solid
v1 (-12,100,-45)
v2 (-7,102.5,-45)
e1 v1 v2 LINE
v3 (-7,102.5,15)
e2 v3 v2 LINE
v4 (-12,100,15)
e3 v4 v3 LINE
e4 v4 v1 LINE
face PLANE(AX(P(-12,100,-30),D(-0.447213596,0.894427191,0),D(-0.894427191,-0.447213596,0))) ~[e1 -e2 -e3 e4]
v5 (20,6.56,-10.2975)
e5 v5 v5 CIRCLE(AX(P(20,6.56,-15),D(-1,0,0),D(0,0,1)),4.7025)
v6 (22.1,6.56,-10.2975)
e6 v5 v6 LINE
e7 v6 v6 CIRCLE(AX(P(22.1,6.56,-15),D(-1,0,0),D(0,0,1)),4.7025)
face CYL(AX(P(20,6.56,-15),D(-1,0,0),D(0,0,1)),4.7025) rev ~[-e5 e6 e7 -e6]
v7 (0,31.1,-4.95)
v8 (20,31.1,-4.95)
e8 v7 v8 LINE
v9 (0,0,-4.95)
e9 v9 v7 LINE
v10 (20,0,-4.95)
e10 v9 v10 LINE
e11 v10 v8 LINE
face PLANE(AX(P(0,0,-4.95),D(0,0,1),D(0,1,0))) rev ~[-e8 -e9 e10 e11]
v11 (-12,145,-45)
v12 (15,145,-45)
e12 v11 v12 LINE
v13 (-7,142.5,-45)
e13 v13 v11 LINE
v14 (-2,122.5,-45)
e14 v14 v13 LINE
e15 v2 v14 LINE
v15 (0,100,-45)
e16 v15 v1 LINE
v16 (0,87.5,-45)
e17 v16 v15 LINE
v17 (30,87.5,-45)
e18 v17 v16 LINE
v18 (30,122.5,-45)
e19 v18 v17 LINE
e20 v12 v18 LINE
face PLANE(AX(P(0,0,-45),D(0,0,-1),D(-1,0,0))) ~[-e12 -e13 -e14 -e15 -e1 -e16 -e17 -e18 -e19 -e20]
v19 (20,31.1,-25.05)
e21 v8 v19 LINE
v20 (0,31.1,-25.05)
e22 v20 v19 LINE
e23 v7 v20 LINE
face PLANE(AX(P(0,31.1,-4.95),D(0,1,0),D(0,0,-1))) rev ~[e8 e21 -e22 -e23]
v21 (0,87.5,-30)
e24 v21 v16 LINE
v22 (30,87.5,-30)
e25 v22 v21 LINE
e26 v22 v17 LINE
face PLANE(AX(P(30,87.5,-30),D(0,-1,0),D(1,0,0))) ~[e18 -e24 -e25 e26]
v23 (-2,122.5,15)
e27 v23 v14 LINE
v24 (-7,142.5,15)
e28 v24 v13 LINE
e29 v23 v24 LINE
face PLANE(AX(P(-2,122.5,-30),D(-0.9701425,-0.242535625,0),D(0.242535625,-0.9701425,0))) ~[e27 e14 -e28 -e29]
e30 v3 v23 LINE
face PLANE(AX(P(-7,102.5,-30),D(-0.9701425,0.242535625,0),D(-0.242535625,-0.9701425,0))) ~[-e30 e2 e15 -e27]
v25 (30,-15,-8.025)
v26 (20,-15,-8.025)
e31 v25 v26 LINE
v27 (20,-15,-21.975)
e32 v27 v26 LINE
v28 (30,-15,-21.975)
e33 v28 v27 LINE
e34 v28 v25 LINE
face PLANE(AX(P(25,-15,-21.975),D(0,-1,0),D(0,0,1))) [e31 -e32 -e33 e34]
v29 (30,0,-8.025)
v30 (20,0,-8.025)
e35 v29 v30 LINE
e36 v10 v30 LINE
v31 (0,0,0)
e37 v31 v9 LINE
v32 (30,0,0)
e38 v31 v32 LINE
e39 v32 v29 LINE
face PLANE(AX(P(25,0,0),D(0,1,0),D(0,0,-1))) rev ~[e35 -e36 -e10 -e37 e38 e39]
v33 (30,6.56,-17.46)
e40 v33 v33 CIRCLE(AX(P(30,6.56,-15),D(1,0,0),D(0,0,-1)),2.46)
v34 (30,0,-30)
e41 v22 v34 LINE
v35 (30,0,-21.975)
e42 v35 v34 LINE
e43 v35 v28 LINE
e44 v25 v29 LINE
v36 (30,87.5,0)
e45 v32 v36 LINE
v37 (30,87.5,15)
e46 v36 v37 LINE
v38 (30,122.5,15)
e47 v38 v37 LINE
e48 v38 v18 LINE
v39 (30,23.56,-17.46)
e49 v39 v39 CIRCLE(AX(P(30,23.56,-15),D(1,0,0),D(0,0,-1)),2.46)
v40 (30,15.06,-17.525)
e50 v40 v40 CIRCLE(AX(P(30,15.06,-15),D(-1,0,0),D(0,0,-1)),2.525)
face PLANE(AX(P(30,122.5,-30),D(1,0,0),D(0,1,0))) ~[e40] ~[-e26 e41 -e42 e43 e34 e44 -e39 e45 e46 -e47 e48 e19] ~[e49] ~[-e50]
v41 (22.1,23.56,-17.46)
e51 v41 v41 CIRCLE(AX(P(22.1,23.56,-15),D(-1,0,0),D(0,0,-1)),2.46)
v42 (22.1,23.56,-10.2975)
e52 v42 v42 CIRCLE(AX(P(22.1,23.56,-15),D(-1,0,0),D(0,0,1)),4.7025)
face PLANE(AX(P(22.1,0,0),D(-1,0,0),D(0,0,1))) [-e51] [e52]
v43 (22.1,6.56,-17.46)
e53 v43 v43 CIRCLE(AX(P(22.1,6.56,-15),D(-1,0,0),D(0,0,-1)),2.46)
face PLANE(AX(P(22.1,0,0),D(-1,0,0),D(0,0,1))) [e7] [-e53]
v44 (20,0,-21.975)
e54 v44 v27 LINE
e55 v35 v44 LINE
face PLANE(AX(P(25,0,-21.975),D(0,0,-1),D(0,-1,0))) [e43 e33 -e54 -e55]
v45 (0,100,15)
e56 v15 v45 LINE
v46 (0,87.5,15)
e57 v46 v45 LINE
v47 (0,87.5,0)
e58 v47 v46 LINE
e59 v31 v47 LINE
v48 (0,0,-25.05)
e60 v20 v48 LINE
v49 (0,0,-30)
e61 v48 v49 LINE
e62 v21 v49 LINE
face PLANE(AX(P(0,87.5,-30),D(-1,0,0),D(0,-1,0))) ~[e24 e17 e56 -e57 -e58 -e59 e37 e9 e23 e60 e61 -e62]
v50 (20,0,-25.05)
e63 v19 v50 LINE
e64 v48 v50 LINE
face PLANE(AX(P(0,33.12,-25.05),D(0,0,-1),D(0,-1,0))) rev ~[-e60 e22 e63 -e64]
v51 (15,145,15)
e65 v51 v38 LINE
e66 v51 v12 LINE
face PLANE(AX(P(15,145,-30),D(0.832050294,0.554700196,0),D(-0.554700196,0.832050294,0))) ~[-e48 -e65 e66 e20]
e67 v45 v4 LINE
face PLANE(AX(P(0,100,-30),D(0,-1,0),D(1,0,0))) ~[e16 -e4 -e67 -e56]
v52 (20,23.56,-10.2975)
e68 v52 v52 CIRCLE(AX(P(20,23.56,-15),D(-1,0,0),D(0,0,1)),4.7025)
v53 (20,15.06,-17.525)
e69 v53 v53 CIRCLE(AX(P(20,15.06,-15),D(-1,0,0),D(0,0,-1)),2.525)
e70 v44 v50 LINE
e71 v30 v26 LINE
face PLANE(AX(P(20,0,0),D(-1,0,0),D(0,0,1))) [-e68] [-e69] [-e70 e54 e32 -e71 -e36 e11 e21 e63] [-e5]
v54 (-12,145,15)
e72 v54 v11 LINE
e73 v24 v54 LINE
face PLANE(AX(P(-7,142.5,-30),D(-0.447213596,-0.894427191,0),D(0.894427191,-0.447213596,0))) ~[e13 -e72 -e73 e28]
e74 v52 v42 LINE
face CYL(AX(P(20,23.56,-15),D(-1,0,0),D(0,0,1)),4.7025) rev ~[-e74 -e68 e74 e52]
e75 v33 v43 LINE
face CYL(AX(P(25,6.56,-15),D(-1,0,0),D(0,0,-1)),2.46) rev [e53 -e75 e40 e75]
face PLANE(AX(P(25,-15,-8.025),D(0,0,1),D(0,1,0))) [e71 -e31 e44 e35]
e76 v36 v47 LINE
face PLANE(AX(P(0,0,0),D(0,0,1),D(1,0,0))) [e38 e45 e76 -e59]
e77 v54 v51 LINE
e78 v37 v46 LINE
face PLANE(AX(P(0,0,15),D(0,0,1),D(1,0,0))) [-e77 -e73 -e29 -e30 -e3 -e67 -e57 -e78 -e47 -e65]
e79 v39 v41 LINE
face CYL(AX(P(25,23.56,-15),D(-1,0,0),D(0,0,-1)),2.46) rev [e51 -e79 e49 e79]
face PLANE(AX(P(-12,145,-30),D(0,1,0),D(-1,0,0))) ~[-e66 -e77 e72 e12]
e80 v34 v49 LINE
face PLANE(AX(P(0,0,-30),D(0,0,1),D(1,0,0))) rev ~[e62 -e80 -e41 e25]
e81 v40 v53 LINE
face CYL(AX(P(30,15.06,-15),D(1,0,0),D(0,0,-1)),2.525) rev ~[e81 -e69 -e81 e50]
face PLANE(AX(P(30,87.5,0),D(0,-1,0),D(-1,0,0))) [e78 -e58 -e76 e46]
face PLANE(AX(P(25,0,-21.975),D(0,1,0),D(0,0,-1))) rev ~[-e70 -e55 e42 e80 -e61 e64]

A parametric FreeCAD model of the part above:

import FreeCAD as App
import Part
import Sketcher

V = App.Vector


def add_polygon(sketch, points):
    """Adds a closed chain of lines whose ends are joined by coincident constraints."""
    first, n = sketch.GeometryCount, len(points)
    for a, b in zip(points, points[1:] + points[:1]):
        sketch.addGeometry(Part.LineSegment(App.Vector(*a, 0), App.Vector(*b, 0)), False)
    for i in range(n):
        sketch.addConstraint(Sketcher.Constraint("Coincident", first + i, 2, first + (i + 1) % n, 1))

doc = App.newDocument("Part")
body = doc.addObject("PartDesign::Body", "Body")

# Sketch on XY plane
sketch1 = body.newObject("Sketcher::SketchObject", "Sketch")
sketch1.AttachmentSupport = (doc.getObject("XY_Plane"), [""])
sketch1.MapMode = "FlatFace"
add_polygon(sketch1, [(0, 40), (0, 0), (25, 0), (25, 40)])  # lines 0-3
sketch1.addConstraint([
    Sketcher.Constraint("Vertical", 0),
    Sketcher.Constraint("Horizontal", 1),
    Sketcher.Constraint("Vertical", 2),
    Sketcher.Constraint("Horizontal", 3),
    Sketcher.Constraint("Coincident", 0, 2, -1, 1),
    Sketcher.Constraint("DistanceX", 1, 1, 1, 2, 25.0),
    Sketcher.Constraint("DistanceY", 0, 2, 0, 1, 40.0),
])
pad1 = body.newObject("PartDesign::Pad", "Pad")
pad1.Profile = sketch1
pad1.Length = 30
pad1.Reversed = True

# Sketch on YZ plane
sketch2 = body.newObject("Sketcher::SketchObject", "Sketch001")
sketch2.AttachmentSupport = (doc.getObject("YZ_Plane"), [""])
sketch2.MapMode = "FlatFace"
sketch2.AttachmentOffset = App.Placement(V(0, 0, 25), App.Rotation())
sketch2.addGeometry(Part.Circle(V(6.6, -15, 0), V(0, 0, 1), 2.5), False)
sketch2.addConstraint([
    Sketcher.Constraint("Diameter", 0, 4.92),
    Sketcher.Constraint("DistanceY", 0, 3, -1, 1, 15.0),
    Sketcher.Constraint("DistanceX", -1, 1, 0, 3, 6.56),
])
pocket1 = body.newObject("PartDesign::Pocket", "Pocket")
pocket1.Profile = sketch2
pocket1.Length = 30

# Sketch on YZ plane
sketch3 = body.newObject("Sketcher::SketchObject", "Sketch002")
sketch3.AttachmentSupport = (doc.getObject("YZ_Plane"), [""])
sketch3.MapMode = "FlatFace"
add_polygon(sketch3, [(0, -25), (0, -5), (33, -5), (33, -25)])  # lines 0-3
sketch3.addConstraint([
    Sketcher.Constraint("Vertical", 0),
    Sketcher.Constraint("Horizontal", 1),
    Sketcher.Constraint("Vertical", 2),
    Sketcher.Constraint("Horizontal", 3),
    Sketcher.Constraint("PointOnObject", 0, 2, -2),
    Sketcher.Constraint("DistanceY", 0, 1, 0, 2, 20.1),
    Sketcher.Constraint("DistanceX", 1, 1, 1, 2, 33.12),
    Sketcher.Constraint("DistanceY", 0, 2, -1, 1, 4.95),
])
pocket2 = body.newObject("PartDesign::Pocket", "Pocket001")
pocket2.Profile = sketch3
pocket2.Length = 20
pocket2.Reversed = True

# Sketch on XZ plane
sketch4 = body.newObject("Sketcher::SketchObject", "Sketch003")
sketch4.AttachmentSupport = (doc.getObject("XZ_Plane"), [""])
sketch4.MapMode = "FlatFace"
add_polygon(sketch4, [(25, -8), (20, -8), (20, -22), (25, -22)])  # lines 0-3
sketch4.addConstraint([
    Sketcher.Constraint("Horizontal", 0),
    Sketcher.Constraint("Vertical", 1),
    Sketcher.Constraint("Horizontal", 2),
    Sketcher.Constraint("Vertical", 3),
    Sketcher.Constraint("DistanceY", 1, 2, 1, 1, 13.95),
    Sketcher.Constraint("DistanceX", 0, 2, 0, 1, 5.0),
    Sketcher.Constraint("DistanceX", -1, 1, 0, 2, 20.0),
    Sketcher.Constraint("DistanceY", 0, 2, -1, 1, 8.025),
])
pad2 = body.newObject("PartDesign::Pad", "Pad001")
pad2.Profile = sketch4
pad2.Length = 15

# Sketch on YZ plane
sketch5 = body.newObject("Sketcher::SketchObject", "Sketch004")
sketch5.AttachmentSupport = (doc.getObject("YZ_Plane"), [""])
sketch5.MapMode = "FlatFace"
sketch5.AttachmentOffset = App.Placement(V(0, 0, 20), App.Rotation())
sketch5.addGeometry([
    Part.Circle(V(6.6, -15, 0), V(0, 0, 1), 4.7),
    Part.Circle(V(6.6, -15, 0), V(0, 0, 1), 2.5),
], False)
sketch5.addConstraint([
    Sketcher.Constraint("Coincident", 1, 3, 0, 3),
    Sketcher.Constraint("Diameter", 0, 9.405),
    Sketcher.Constraint("Diameter", 1, 4.92),
    Sketcher.Constraint("DistanceY", 0, 3, -1, 1, 15.0),
    Sketcher.Constraint("DistanceX", -1, 1, 0, 3, 6.56),
])
pocket3 = body.newObject("PartDesign::Pocket", "Pocket002")
pocket3.Profile = sketch5
pocket3.Length = 2.1
pocket3.Reversed = True

# Sketch on YZ plane
sketch6 = body.newObject("Sketcher::SketchObject", "Sketch005")
sketch6.AttachmentSupport = (doc.getObject("YZ_Plane"), [""])
sketch6.MapMode = "FlatFace"
sketch6.AttachmentOffset = App.Placement(V(0, 0, 25), App.Rotation())
sketch6.addGeometry(Part.Circle(V(23.6, -15, 0), V(0, 0, 1), 2.5), False)
sketch6.addConstraint([
    Sketcher.Constraint("Diameter", 0, 4.92),
    Sketcher.Constraint("DistanceY", 0, 3, -1, 1, 15.0),
    Sketcher.Constraint("DistanceX", -1, 1, 0, 3, 23.56),
])
pocket4 = body.newObject("PartDesign::Pocket", "Pocket003")
pocket4.Profile = sketch6
pocket4.Length = 10

# Sketch on YZ plane
sketch7 = body.newObject("Sketcher::SketchObject", "Sketch006")
sketch7.AttachmentSupport = (doc.getObject("YZ_Plane"), [""])
sketch7.MapMode = "FlatFace"
sketch7.AttachmentOffset = App.Placement(V(0, 0, 20), App.Rotation())
sketch7.addGeometry([
    Part.Circle(V(23.6, -15, 0), V(0, 0, 1), 4.7),
    Part.Circle(V(23.6, -15, 0), V(0, 0, 1), 2.5),
], False)
sketch7.addConstraint([
    Sketcher.Constraint("Coincident", 1, 3, 0, 3),
    Sketcher.Constraint("Diameter", 0, 9.405),
    Sketcher.Constraint("Diameter", 1, 4.92),
    Sketcher.Constraint("DistanceY", 0, 3, -1, 1, 15.0),
    Sketcher.Constraint("DistanceX", -1, 1, 0, 3, 23.56),
])
pocket5 = body.newObject("PartDesign::Pocket", "Pocket004")
pocket5.Profile = sketch7
pocket5.Length = 2.1
pocket5.Reversed = True

# Sketch on YZ plane
sketch8 = body.newObject("Sketcher::SketchObject", "Sketch007")
sketch8.AttachmentSupport = (doc.getObject("YZ_Plane"), [""])
sketch8.MapMode = "FlatFace"
sketch8.AttachmentOffset = App.Placement(V(0, 0, 25), App.Rotation())
add_polygon(sketch8, [(0, -30), (40, -30), (40, 0), (0, 0), (0, -8), (-15, -8), (-15, -22), (0, -22)])  # lines 0-7
sketch8.addGeometry(Part.Circle(V(6.6, -15, 0), V(0, 0, 1), 2.5), False)  # 8
sketch8.addGeometry(Part.Circle(V(23.6, -15, 0), V(0, 0, 1), 2.5), False)  # 9
sketch8.addConstraint([
    Sketcher.Constraint("Horizontal", 0),
    Sketcher.Constraint("Vertical", 1),
    Sketcher.Constraint("Horizontal", 2),
    Sketcher.Constraint("Vertical", 3),
    Sketcher.Constraint("Horizontal", 4),
    Sketcher.Constraint("Vertical", 5),
    Sketcher.Constraint("Horizontal", 6),
    Sketcher.Constraint("Vertical", 7),
    Sketcher.Constraint("Coincident", 2, 2, -1, 1),
    Sketcher.Constraint("Equal", 8, 9),
    Sketcher.Constraint("PointOnObject", 6, 2, -2),
    Sketcher.Constraint("Horizontal", 8, 3, 9, 3),
    Sketcher.Constraint("Equal", 3, 7),
    Sketcher.Constraint("Diameter", 8, 4.92),
    Sketcher.Constraint("DistanceX", 0, 1, 0, 2, 40.0),
    Sketcher.Constraint("DistanceX", 4, 2, 4, 1, 15.0),
    Sketcher.Constraint("DistanceY", 1, 1, 1, 2, 30.0),
    Sketcher.Constraint("DistanceY", 8, 3, -1, 1, 15.0),
    Sketcher.Constraint("DistanceX", 8, 3, 9, 3, 17.0),
    Sketcher.Constraint("DistanceY", 5, 2, 5, 1, 13.95),
    Sketcher.Constraint("DistanceX", -1, 1, 8, 3, 6.56),
])
pad3 = body.newObject("PartDesign::Pad", "Pad002")
pad3.Profile = sketch8
pad3.Length = 5

# Sketch on XZ plane
sketch9 = body.newObject("Sketcher::SketchObject", "Sketch008")
sketch9.AttachmentSupport = (doc.getObject("XZ_Plane"), [""])
sketch9.MapMode = "FlatFace"
sketch9.AttachmentOffset = App.Placement(V(0, 0, -40), App.Rotation())
add_polygon(sketch9, [(30, -30), (0, -30), (0, 0), (30, 0)])  # lines 0-3
sketch9.addConstraint([
    Sketcher.Constraint("Horizontal", 0),
    Sketcher.Constraint("Vertical", 1),
    Sketcher.Constraint("Horizontal", 2),
    Sketcher.Constraint("Vertical", 3),
    Sketcher.Constraint("Coincident", 1, 2, -1, 1),
    Sketcher.Constraint("Equal", 2, 1),
    Sketcher.Constraint("DistanceX", 0, 2, 0, 1, 30.0),
])
pad4 = body.newObject("PartDesign::Pad", "Pad003")
pad4.Profile = sketch9
pad4.Length = 30
pad4.Reversed = True

# Sketch on YZ plane
sketch10 = body.newObject("Sketcher::SketchObject", "Sketch009")
sketch10.AttachmentSupport = (doc.getObject("YZ_Plane"), [""])
sketch10.MapMode = "FlatFace"
sketch10.AttachmentOffset = App.Placement(V(0, 0, 30), App.Rotation())
sketch10.addGeometry(Part.Circle(V(15.1, -15, 0), V(0, 0, 1), 2.5), False)
sketch10.addConstraint([
    Sketcher.Constraint("Diameter", 0, 5.05),
    Sketcher.Constraint("DistanceY", 0, 3, -1, 1, 15.0),
    Sketcher.Constraint("DistanceX", -1, 1, 0, 3, 15.06),
])
pocket6 = body.newObject("PartDesign::Pocket", "Pocket005")
pocket6.Profile = sketch10
pocket6.Length = 30

# Sketch on XY plane
sketch11 = body.newObject("Sketcher::SketchObject", "Sketch010")
sketch11.AttachmentSupport = (doc.getObject("XY_Plane"), [""])
sketch11.MapMode = "FlatFace"
add_polygon(sketch11, [(0, 70), (30, 70), (30, 122), (15, 145), (-12, 145), (-7, 142), (-2, 122), (-7, 102), (-12, 100), (0, 100)])  # lines 0-9
sketch11.addConstraint([
    Sketcher.Constraint("Horizontal", 0),
    Sketcher.Constraint("Vertical", 1),
    Sketcher.Constraint("Horizontal", 3),
    Sketcher.Constraint("Horizontal", 8),
    Sketcher.Constraint("Vertical", 9),
    Sketcher.Constraint("PointOnObject", 8, 2, -2),
    Sketcher.Constraint("Horizontal", 1, 2, 5, 2),
    Sketcher.Constraint("Vertical", 4, 2, 6, 2),
    Sketcher.Constraint("Vertical", 3, 2, 7, 2),
    Sketcher.Constraint("Equal", 0, 9),
    Sketcher.Constraint("Equal", 5, 6),
    Sketcher.Constraint("Equal", 4, 7),
    Sketcher.Constraint("DistanceX", 8, 1, 8, 2, 12.0),
    Sketcher.Constraint("DistanceX", 0, 1, 0, 2, 30.0),
    Sketcher.Constraint("DistanceX", 3, 2, 3, 1, 27.0),
    Sketcher.Constraint("DistanceY", 1, 1, 1, 2, 52.5),
    Sketcher.Constraint("DistanceY", -1, 1, 0, 2, 70.0),
    Sketcher.Constraint("DistanceX", 4, 2, -1, 1, 7.0),
    Sketcher.Constraint("DistanceX", 5, 2, -1, 1, 2.0),
    Sketcher.Constraint("DistanceY", 1, 2, 4, 2, 20.0),
])
pad5 = body.newObject("PartDesign::Pad", "Pad004")
pad5.Profile = sketch11
pad5.Length = 30
pad5.Reversed = True

# Sketch on YZ plane
sketch12 = body.newObject("Sketcher::SketchObject", "Sketch011")
sketch12.AttachmentSupport = (doc.getObject("YZ_Plane"), [""])
sketch12.MapMode = "FlatFace"
add_polygon(sketch12, [(33.1, -5), (33.1, -25.1), (31.1, -25.1), (31.1, -5)])  # lines 0-3
sketch12.addConstraint([
    Sketcher.Constraint("Vertical", 0),
    Sketcher.Constraint("Horizontal", 1),
    Sketcher.Constraint("Vertical", 2),
    Sketcher.Constraint("Horizontal", 3),
    Sketcher.Constraint("DistanceX", 1, 2, 1, 1, 2.02),
    Sketcher.Constraint("DistanceY", 0, 2, 0, 1, 20.1),
    Sketcher.Constraint("DistanceX", -1, 1, 1, 2, 31.1),
    Sketcher.Constraint("DistanceY", 0, 2, -1, 1, 25.05),
])
pad6 = body.newObject("PartDesign::Pad", "Pad005")
pad6.Profile = sketch12
pad6.Length = 20

# Sketch on XY plane
sketch13 = body.newObject("Sketcher::SketchObject", "Sketch012")
sketch13.AttachmentSupport = (doc.getObject("XY_Plane"), [""])
sketch13.MapMode = "FlatFace"
add_polygon(sketch13, [(-12, 100), (0, 100), (0, 88), (30, 88), (30, 122), (15, 145), (-12, 145), (-7, 142), (-2, 122), (-7, 102)])  # lines 0-9
sketch13.addConstraint([
    Sketcher.Constraint("Horizontal", 0),
    Sketcher.Constraint("Vertical", 1),
    Sketcher.Constraint("Horizontal", 2),
    Sketcher.Constraint("Vertical", 3),
    Sketcher.Constraint("Horizontal", 5),
    Sketcher.Constraint("PointOnObject", 0, 2, -2),
    Sketcher.Constraint("Horizontal", 3, 2, 7, 2),
    Sketcher.Constraint("Vertical", 6, 2, 8, 2),
    Sketcher.Constraint("Vertical", 5, 2, 9, 2),
    Sketcher.Constraint("Equal", 7, 8),
    Sketcher.Constraint("Equal", 6, 9),
    Sketcher.Constraint("DistanceX", 2, 1, 2, 2, 30.0),
    Sketcher.Constraint("DistanceY", 3, 1, 3, 2, 35.0),
    Sketcher.Constraint("DistanceX", 0, 1, 0, 2, 12.0),
    Sketcher.Constraint("DistanceX", 5, 2, 5, 1, 27.0),
    Sketcher.Constraint("DistanceY", 1, 2, 1, 1, 12.5),
    Sketcher.Constraint("DistanceY", -1, 1, 0, 2, 100.0),
    Sketcher.Constraint("DistanceX", 6, 2, -1, 1, 7.0),
    Sketcher.Constraint("DistanceX", 7, 2, -1, 1, 2.0),
    Sketcher.Constraint("DistanceY", 3, 2, 6, 2, 20.0),
])
pad7 = body.newObject("PartDesign::Pad", "Pad006")
pad7.Profile = sketch13
pad7.Length = 15
doc.recompute()

datumplane = body.newObject("PartDesign::Plane", "DatumPlane")
datumplane.AttachmentSupport = (doc.getObject("XY_Plane"), [""])
datumplane.MapMode = "FlatFace"
datumplane.AttachmentOffset = App.Placement(V(0, 0, -15), App.Rotation())
mirrored = body.newObject("PartDesign::Mirrored", "Mirrored")
mirrored.Originals = [pad7]
mirrored.MirrorPlane = (datumplane, [""])
body.Tip = mirrored

doc.recompute()
